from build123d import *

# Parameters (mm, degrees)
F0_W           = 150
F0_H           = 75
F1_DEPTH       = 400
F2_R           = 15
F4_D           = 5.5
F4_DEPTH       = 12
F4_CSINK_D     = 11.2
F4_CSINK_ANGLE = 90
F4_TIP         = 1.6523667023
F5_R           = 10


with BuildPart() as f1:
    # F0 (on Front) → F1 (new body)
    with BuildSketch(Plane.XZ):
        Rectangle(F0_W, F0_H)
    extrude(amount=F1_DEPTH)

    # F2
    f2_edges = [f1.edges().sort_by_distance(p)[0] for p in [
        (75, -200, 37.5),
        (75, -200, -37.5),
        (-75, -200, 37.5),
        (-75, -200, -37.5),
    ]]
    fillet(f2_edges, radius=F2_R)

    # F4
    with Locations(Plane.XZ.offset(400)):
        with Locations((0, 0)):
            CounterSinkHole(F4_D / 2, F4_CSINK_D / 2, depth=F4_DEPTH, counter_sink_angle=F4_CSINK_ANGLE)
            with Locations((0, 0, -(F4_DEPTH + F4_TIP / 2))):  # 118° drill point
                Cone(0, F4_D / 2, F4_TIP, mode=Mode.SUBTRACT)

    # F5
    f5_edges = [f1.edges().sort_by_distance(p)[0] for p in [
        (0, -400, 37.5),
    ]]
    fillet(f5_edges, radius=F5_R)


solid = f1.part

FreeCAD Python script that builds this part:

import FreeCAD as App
import Part
import Sketcher
from FreeCAD import Vector
Q = App.Units.Quantity


def edges_at(feature, points):
    """Names of the edges that pass closest to the given points."""
    edges = feature.Shape.Edges
    near = lambda p: min(range(len(edges)), key=lambda i: edges[i].distToShape(Part.Vertex(*p))[0])
    return sorted({f"Edge{near(p) + 1}" for p in points})


def add_polygon(sketch, points):
    """Adds a closed chain of lines whose ends are joined by coincident constraints."""
    first, n = sketch.GeometryCount, len(points)
    for a, b in zip(points, points[1:] + points[:1]):
        sketch.addGeometry(Part.LineSegment(App.Vector(*a, 0), App.Vector(*b, 0)), False)
    for i in range(n):
        sketch.addConstraint(Sketcher.Constraint("Coincident", first + i, 2, first + (i + 1) % n, 1))

doc = App.newDocument("Part")
body = doc.addObject("PartDesign::Body", "Body")

# Sketch on XZ plane
sketch1 = body.newObject("Sketcher::SketchObject", "Sketch")
sketch1.AttachmentSupport = (doc.getObject("XZ_Plane"), [""])
sketch1.MapMode = "FlatFace"
add_polygon(sketch1, [(-75, 38), (-75, -38), (75, -38), (75, 38)])  # lines 0-3
sketch1.addConstraint([
    Sketcher.Constraint("Vertical", 0),
    Sketcher.Constraint("Horizontal", 1),
    Sketcher.Constraint("Vertical", 2),
    Sketcher.Constraint("Horizontal", 3),
    Sketcher.Constraint("Symmetric", 0, 2, 2, 2, -1, 1),
    Sketcher.Constraint("DistanceX", 1, 1, 1, 2, Q("150 mm")),
    Sketcher.Constraint("DistanceY", 0, 2, 0, 1, Q("75 mm")),
])
pad1 = body.newObject("PartDesign::Pad", "Pad")
pad1.Profile = sketch1
pad1.Length = 400
doc.recompute()

fillet = body.newObject("PartDesign::Fillet", "Fillet")
fillet.Base = (pad1, edges_at(pad1, [
    (75, -200, 37.5),
    (75, -200, -37.5),
    (-75, -200, 37.5),
    (-75, -200, -37.5),
]))
fillet.Radius = 15

# Sketch on XZ plane
sketch2 = body.newObject("Sketcher::SketchObject", "Sketch001")
sketch2.AttachmentSupport = (doc.getObject("XZ_Plane"), [""])
sketch2.MapMode = "FlatFace"
sketch2.AttachmentOffset = App.Placement(Vector(0, 0, 400), App.Rotation())
sketch2.addGeometry(Part.Circle(Vector(0, 0, 0), Vector(0, 0, 1), 2.8), False)
sketch2.addConstraint([
    Sketcher.Constraint("Coincident", 0, 3, -1, 1),
    Sketcher.Constraint("Diameter", 0, Q("5.5 mm")),
])
doc.recompute()
hole = body.newObject("PartDesign::Hole", "Hole")
hole.Profile = sketch2
hole.ThreadType = "None"
hole.Diameter = 5.5
hole.DepthType = "Dimension"
hole.Depth = 12
hole.DrillPoint = "Angled"
hole.DrillPointAngle = 118
hole.HoleCutType = "Countersink"
hole.HoleCutDiameter = 11.2
hole.HoleCutCountersinkAngle = 90
doc.recompute()

fillet2 = body.newObject("PartDesign::Fillet", "Fillet001")
fillet2.Base = (hole, edges_at(hole, [(0, -400, 37.5)]))
fillet2.Radius = 10

doc.recompute()
